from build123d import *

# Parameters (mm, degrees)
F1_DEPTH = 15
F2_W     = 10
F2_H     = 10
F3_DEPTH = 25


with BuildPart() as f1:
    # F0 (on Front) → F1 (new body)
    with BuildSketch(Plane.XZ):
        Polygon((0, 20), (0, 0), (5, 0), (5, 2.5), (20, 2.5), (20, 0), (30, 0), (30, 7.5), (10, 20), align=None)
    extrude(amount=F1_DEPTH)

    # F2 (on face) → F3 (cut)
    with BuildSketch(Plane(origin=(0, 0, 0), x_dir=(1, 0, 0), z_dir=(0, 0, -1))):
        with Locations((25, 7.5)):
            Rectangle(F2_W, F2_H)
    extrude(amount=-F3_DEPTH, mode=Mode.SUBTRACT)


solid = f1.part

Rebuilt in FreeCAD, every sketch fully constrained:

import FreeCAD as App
import Part
import Sketcher
from FreeCAD import Vector


def add_polygon(sketch, points):
    """Adds a closed chain of lines whose ends are joined by coincident constraints."""
    first, n = sketch.GeometryCount, len(points)
    for a, b in zip(points, points[1:] + points[:1]):
        sketch.addGeometry(Part.LineSegment(App.Vector(*a, 0), App.Vector(*b, 0)), False)
    for i in range(n):
        sketch.addConstraint(Sketcher.Constraint("Coincident", first + i, 2, first + (i + 1) % n, 1))

doc = App.newDocument("Part")
body = doc.addObject("PartDesign::Body", "Body")

# Sketch on XZ plane
sketch1 = body.newObject("Sketcher::SketchObject", "Sketch")
sketch1.AttachmentSupport = (doc.getObject("XZ_Plane"), [""])
sketch1.MapMode = "FlatFace"
add_polygon(sketch1, [(0, 20), (0, 0), (5, 0), (5, 2.5), (20, 2.5), (20, 0), (30, 0), (30, 7.5), (10, 20)])  # lines 0-8
sketch1.addConstraint([
    Sketcher.Constraint("Vertical", 0),
    Sketcher.Constraint("Horizontal", 1),
    Sketcher.Constraint("Vertical", 2),
    Sketcher.Constraint("Horizontal", 3),
    Sketcher.Constraint("Vertical", 4),
    Sketcher.Constraint("Horizontal", 5),
    Sketcher.Constraint("Vertical", 6),
    Sketcher.Constraint("Horizontal", 8),
    Sketcher.Constraint("Coincident", 0, 2, -1, 1),
    Sketcher.Constraint("PointOnObject", 4, 2, -1),
    Sketcher.Constraint("Equal", 5, 8),
    Sketcher.Constraint("DistanceX", 1, 1, 1, 2, 5.0),
    Sketcher.Constraint("DistanceX", 3, 1, 3, 2, 15.0),
    Sketcher.Constraint("DistanceX", 5, 1, 5, 2, 10.0),
    Sketcher.Constraint("DistanceY", 0, 2, 0, 1, 20.0),
    Sketcher.Constraint("DistanceY", 2, 1, 2, 2, 2.5),
    Sketcher.Constraint("DistanceY", 6, 1, 6, 2, 7.5),
])
pad1 = body.newObject("PartDesign::Pad", "Pad")
pad1.Profile = sketch1
pad1.Length = 15

# Sketch on XY plane
sketch2 = body.newObject("Sketcher::SketchObject", "Sketch001")
sketch2.AttachmentSupport = (doc.getObject("XY_Plane"), [""])
sketch2.MapMode = "FlatFace"
add_polygon(sketch2, [(20, -12), (20, -2), (30, -2), (30, -12)])  # lines 0-3
sketch2.addConstraint([
    Sketcher.Constraint("Vertical", 0),
    Sketcher.Constraint("Horizontal", 1),
    Sketcher.Constraint("Vertical", 2),
    Sketcher.Constraint("Horizontal", 3),
    Sketcher.Constraint("Equal", 3, 0),
    Sketcher.Constraint("DistanceX", 1, 1, 1, 2, 10.0),
    Sketcher.Constraint("DistanceX", -1, 1, 0, 2, 20.0),
    Sketcher.Constraint("DistanceY", 0, 2, -1, 1, 2.5),
])
pocket1 = body.newObject("PartDesign::Pocket", "Pocket")
pocket1.Profile = sketch2
pocket1.Length = 25
pocket1.Reversed = True

doc.recompute()
